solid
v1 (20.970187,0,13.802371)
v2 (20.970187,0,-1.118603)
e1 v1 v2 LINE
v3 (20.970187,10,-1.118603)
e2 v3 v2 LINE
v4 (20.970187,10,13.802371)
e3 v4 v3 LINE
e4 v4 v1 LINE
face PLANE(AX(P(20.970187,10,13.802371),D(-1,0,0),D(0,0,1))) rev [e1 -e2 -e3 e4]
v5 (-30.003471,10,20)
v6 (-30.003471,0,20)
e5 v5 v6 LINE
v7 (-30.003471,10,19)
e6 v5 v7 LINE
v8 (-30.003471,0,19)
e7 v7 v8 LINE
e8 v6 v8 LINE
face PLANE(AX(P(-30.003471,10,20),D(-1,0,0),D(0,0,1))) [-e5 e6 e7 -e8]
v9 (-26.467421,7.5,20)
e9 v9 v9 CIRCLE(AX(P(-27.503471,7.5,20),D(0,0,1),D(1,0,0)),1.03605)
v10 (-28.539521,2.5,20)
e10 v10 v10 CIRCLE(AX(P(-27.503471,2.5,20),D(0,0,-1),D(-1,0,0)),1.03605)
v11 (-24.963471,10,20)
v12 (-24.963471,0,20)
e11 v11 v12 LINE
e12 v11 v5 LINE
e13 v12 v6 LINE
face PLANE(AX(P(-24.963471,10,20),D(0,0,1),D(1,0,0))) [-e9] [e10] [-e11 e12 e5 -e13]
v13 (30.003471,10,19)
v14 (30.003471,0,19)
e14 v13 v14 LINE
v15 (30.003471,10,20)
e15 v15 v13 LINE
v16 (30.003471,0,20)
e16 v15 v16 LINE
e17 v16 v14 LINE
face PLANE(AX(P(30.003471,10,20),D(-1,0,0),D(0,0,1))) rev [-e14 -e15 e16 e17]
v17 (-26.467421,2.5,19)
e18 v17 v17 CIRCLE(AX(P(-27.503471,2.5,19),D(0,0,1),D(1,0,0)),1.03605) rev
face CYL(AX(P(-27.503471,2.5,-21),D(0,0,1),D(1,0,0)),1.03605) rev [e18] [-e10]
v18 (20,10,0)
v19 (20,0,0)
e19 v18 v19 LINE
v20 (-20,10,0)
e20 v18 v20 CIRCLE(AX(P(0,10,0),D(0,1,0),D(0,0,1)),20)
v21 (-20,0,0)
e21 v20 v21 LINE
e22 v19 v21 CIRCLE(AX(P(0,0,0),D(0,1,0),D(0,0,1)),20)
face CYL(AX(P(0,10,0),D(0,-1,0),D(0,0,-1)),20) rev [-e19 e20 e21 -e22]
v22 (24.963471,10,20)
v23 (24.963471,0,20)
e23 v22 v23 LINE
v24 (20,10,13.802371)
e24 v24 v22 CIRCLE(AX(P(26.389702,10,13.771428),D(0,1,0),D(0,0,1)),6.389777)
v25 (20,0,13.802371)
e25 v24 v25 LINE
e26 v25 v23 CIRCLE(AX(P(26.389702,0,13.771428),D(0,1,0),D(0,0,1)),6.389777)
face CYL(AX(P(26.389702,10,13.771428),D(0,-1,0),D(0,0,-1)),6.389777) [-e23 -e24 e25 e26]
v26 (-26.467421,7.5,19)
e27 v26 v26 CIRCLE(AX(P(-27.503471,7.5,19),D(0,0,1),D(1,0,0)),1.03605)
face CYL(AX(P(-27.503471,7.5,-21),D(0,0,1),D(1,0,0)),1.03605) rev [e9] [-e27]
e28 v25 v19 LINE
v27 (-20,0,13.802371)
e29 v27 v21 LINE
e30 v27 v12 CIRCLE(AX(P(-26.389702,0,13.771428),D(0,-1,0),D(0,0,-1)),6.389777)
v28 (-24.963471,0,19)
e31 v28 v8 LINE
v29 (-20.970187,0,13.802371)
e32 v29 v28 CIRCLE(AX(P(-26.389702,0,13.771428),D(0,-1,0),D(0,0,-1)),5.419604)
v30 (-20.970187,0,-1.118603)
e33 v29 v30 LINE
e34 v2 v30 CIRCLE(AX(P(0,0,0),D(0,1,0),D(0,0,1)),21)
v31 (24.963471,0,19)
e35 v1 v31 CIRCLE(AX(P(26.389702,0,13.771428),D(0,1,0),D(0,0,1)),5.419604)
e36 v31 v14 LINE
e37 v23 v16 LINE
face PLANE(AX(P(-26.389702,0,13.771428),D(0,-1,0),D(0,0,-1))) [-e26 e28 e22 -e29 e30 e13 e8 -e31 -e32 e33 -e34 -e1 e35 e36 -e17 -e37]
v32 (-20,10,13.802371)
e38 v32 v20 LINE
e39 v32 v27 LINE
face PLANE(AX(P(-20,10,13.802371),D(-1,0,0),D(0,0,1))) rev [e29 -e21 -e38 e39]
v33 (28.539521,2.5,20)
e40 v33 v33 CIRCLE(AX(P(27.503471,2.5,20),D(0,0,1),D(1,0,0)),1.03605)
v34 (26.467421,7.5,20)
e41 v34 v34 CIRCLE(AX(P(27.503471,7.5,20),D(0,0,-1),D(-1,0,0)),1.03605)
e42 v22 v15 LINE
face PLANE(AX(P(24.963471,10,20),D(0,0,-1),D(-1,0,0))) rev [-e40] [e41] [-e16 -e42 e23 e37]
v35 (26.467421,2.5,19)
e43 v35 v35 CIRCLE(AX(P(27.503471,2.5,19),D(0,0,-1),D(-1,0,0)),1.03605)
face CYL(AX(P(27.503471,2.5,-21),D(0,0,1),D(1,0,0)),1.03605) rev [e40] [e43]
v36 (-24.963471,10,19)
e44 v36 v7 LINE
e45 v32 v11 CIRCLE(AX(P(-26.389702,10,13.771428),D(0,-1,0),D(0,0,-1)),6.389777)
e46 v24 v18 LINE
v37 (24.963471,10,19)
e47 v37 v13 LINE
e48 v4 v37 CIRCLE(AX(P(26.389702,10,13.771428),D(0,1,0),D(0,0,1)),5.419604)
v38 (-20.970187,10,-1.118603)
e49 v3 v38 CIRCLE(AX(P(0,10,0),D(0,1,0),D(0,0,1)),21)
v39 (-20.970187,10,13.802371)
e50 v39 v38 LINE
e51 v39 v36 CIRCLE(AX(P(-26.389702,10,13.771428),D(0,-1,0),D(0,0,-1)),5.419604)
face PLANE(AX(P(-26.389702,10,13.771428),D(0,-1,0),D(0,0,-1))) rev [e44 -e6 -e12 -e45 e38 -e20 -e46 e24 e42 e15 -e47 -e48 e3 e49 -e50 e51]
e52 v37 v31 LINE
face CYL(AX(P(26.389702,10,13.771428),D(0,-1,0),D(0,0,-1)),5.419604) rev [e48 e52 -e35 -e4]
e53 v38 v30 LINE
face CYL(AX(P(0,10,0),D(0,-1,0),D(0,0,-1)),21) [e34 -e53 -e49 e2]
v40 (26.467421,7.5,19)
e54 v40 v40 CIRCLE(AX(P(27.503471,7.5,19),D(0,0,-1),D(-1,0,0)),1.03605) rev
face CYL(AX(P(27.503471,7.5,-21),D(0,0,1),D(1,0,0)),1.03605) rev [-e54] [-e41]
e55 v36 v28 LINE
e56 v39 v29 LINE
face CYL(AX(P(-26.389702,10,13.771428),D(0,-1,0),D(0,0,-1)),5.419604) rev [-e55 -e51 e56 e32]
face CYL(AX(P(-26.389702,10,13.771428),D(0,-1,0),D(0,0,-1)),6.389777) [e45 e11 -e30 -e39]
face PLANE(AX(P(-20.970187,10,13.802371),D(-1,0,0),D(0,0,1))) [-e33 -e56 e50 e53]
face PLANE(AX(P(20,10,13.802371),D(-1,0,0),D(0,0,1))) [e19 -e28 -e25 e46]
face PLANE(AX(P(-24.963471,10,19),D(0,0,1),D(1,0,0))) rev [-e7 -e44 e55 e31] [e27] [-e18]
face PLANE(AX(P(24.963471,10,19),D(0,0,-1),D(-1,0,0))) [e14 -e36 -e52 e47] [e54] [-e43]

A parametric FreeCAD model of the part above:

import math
import FreeCAD as App
import Part
import Sketcher
Q = App.Units.Quantity

doc = App.newDocument("Part")
body = doc.addObject("PartDesign::Body", "Body")

# Sketch on XZ plane
sketch1 = body.newObject("Sketcher::SketchObject", "Sketch")
sketch1.AttachmentSupport = (doc.getObject("XZ_Plane"), [""])
sketch1.MapMode = "FlatFace"
sketch1.addGeometry(Part.LineSegment(App.Vector(25, 20, 0), App.Vector(30, 20, 0)), False)
sketch1.addGeometry(Part.LineSegment(App.Vector(30, 20, 0), App.Vector(30, 19, 0)), False)
sketch1.addGeometry(Part.LineSegment(App.Vector(30, 19, 0), App.Vector(25, 19, 0)), False)
sketch1.addGeometry(Part.ArcOfCircle(Part.Circle(App.Vector(26.4, 13.8, 0), App.Vector(0, 0, 1), 5.4), math.radians(105), math.radians(180)), False)
sketch1.addGeometry(Part.LineSegment(App.Vector(21, 13.8, 0), App.Vector(21, -1.1, 0)), False)
sketch1.addGeometry(Part.ArcOfCircle(Part.Circle(App.Vector(0, 0, 0), App.Vector(0, 0, 1), 21), math.radians(-177), math.radians(-3)), False)
sketch1.addGeometry(Part.LineSegment(App.Vector(-21, -1.1, 0), App.Vector(-21, 13.8, 0)), False)
sketch1.addGeometry(Part.ArcOfCircle(Part.Circle(App.Vector(-26.4, 13.8, 0), App.Vector(0, 0, 1), 5.4), math.radians(0), math.radians(75)), False)
sketch1.addGeometry(Part.LineSegment(App.Vector(-25, 19, 0), App.Vector(-30, 19, 0)), False)
sketch1.addGeometry(Part.LineSegment(App.Vector(-30, 19, 0), App.Vector(-30, 20, 0)), False)
sketch1.addGeometry(Part.LineSegment(App.Vector(-30, 20, 0), App.Vector(-25, 20, 0)), False)
sketch1.addGeometry(Part.ArcOfCircle(Part.Circle(App.Vector(-26.4, 13.8, 0), App.Vector(0, 0, 1), 6.4), math.radians(0), math.radians(77)), False)
sketch1.addGeometry(Part.LineSegment(App.Vector(-20, 13.8, 0), App.Vector(-20, 0, 0)), False)
sketch1.addGeometry(Part.ArcOfCircle(Part.Circle(App.Vector(0, 0, 0), App.Vector(0, 0, 1), 20), math.radians(180), math.radians(360)), False)
sketch1.addGeometry(Part.LineSegment(App.Vector(20, 0, 0), App.Vector(20, 13.8, 0)), False)
sketch1.addGeometry(Part.ArcOfCircle(Part.Circle(App.Vector(26.4, 13.8, 0), App.Vector(0, 0, 1), 6.4), math.radians(103), math.radians(180)), False)
sketch1.addConstraint(Sketcher.Constraint("Coincident", 0, 2, 1, 1))
sketch1.addConstraint(Sketcher.Constraint("Coincident", 1, 2, 2, 1))
sketch1.addConstraint(Sketcher.Constraint("Coincident", 2, 2, 3, 1))
sketch1.addConstraint(Sketcher.Constraint("Coincident", 3, 2, 4, 1))
sketch1.addConstraint(Sketcher.Constraint("Coincident", 4, 2, 5, 2))
sketch1.addConstraint(Sketcher.Constraint("Coincident", 5, 1, 6, 1))
sketch1.addConstraint(Sketcher.Constraint("Coincident", 6, 2, 7, 1))
sketch1.addConstraint(Sketcher.Constraint("Coincident", 7, 2, 8, 1))
sketch1.addConstraint(Sketcher.Constraint("Coincident", 8, 2, 9, 1))
sketch1.addConstraint(Sketcher.Constraint("Coincident", 9, 2, 10, 1))
sketch1.addConstraint(Sketcher.Constraint("Coincident", 10, 2, 11, 2))
sketch1.addConstraint(Sketcher.Constraint("Coincident", 11, 1, 12, 1))
sketch1.addConstraint(Sketcher.Constraint("Tangent", 12, 2, 13, 1))
sketch1.addConstraint(Sketcher.Constraint("Tangent", 13, 2, 14, 1))
sketch1.addConstraint(Sketcher.Constraint("Coincident", 14, 2, 15, 2))
sketch1.addConstraint(Sketcher.Constraint("Coincident", 15, 1, 0, 1))
sketch1.addConstraint(Sketcher.Constraint("Horizontal", 0))
sketch1.addConstraint(Sketcher.Constraint("Vertical", 1))
sketch1.addConstraint(Sketcher.Constraint("Horizontal", 2))
sketch1.addConstraint(Sketcher.Constraint("Vertical", 4))
sketch1.addConstraint(Sketcher.Constraint("Vertical", 6))
sketch1.addConstraint(Sketcher.Constraint("Horizontal", 8))
sketch1.addConstraint(Sketcher.Constraint("Vertical", 9))
sketch1.addConstraint(Sketcher.Constraint("Horizontal", 10))
sketch1.addConstraint(Sketcher.Constraint("Vertical", 12))
sketch1.addConstraint(Sketcher.Constraint("Vertical", 14))
sketch1.addConstraint(Sketcher.Constraint("Coincident", 5, 3, -1, 1))
sketch1.addConstraint(Sketcher.Constraint("Coincident", 13, 3, -1, 1))
sketch1.addConstraint(Sketcher.Constraint("Coincident", 11, 3, 7, 3))
sketch1.addConstraint(Sketcher.Constraint("Coincident", 15, 3, 3, 3))
sketch1.addConstraint(Sketcher.Constraint("Equal", 3, 7))
sketch1.addConstraint(Sketcher.Constraint("Equal", 11, 15))
sketch1.addConstraint(Sketcher.Constraint("Symmetric", 3, 3, 7, 3, -2))
sketch1.addConstraint(Sketcher.Constraint("Symmetric", 1, 2, 8, 2, -2))
sketch1.addConstraint(Sketcher.Constraint("Horizontal", 4, 2, 5, 1))
sketch1.addConstraint(Sketcher.Constraint("Horizontal", 0, 2, 9, 2))
sketch1.addConstraint(Sketcher.Constraint("Horizontal", 6, 2, 11, 1))
sketch1.addConstraint(Sketcher.Constraint("Vertical", 7, 2, 10, 2))
sketch1.addConstraint(Sketcher.Constraint("Radius", 5, Q("21 mm")))
sketch1.addConstraint(Sketcher.Constraint("Radius", 13, Q("20 mm")))
sketch1.addConstraint(Sketcher.Constraint("DistanceY", 1, 2, 1, 1, Q("1 mm")))
sketch1.addConstraint(Sketcher.Constraint("DistanceY", -1, 1, 0, 2, Q("20 mm")))
sketch1.addConstraint(Sketcher.Constraint("DistanceX", 0, 1, 0, 2, Q("5.04 mm")))
sketch1.addConstraint(Sketcher.Constraint("Radius", 3, Q("5.419604 mm")))
sketch1.addConstraint(Sketcher.Constraint("Radius", 11, Q("6.389777 mm")))
sketch1.addConstraint(Sketcher.Constraint("DistanceY", 12, 2, 12, 1, Q("13.802371 mm")))
pad1 = body.newObject("PartDesign::Pad", "Pad")
pad1.Profile = sketch1
pad1.Length = 10
pad1.Reversed = True

# Sketch on XY plane
sketch2 = body.newObject("Sketcher::SketchObject", "Sketch001")
sketch2.AttachmentSupport = (doc.getObject("XY_Plane"), [""])
sketch2.MapMode = "FlatFace"
sketch2.AttachmentOffset = App.Placement(App.Vector(0, 0, 20), App.Rotation())
sketch2.addGeometry(Part.Circle(App.Vector(-27.5, 7.5, 0), App.Vector(0, 0, 1), 1), False)
sketch2.addGeometry(Part.Circle(App.Vector(-27.5, 2.5, 0), App.Vector(0, 0, 1), 1), False)
sketch2.addGeometry(Part.Circle(App.Vector(27.5, 2.5, 0), App.Vector(0, 0, 1), 1), False)
sketch2.addGeometry(Part.Circle(App.Vector(27.5, 7.5, 0), App.Vector(0, 0, 1), 1), False)
sketch2.addConstraint(Sketcher.Constraint("Equal", 0, 1))
sketch2.addConstraint(Sketcher.Constraint("Equal", 1, 2))
sketch2.addConstraint(Sketcher.Constraint("Equal", 2, 3))
sketch2.addConstraint(Sketcher.Constraint("Symmetric", 1, 3, 2, 3, -2))
sketch2.addConstraint(Sketcher.Constraint("Symmetric", 0, 3, 3, 3, -2))
sketch2.addConstraint(Sketcher.Constraint("Vertical", 0, 3, 1, 3))
sketch2.addConstraint(Sketcher.Constraint("DistanceY", 1, 3, 0, 3, Q("5 mm")))
sketch2.addConstraint(Sketcher.Constraint("Diameter", 0, Q("2.0721 mm")))
sketch2.addConstraint(Sketcher.Constraint("DistanceY", -1, 1, 0, 3, Q("7.5 mm")))
sketch2.addConstraint(Sketcher.Constraint("DistanceX", 0, 3, -1, 1, Q("27.503471 mm")))
pocket1 = body.newObject("PartDesign::Pocket", "Pocket")
pocket1.Profile = sketch2
pocket1.Type = "ThroughAll"

doc.recompute()
